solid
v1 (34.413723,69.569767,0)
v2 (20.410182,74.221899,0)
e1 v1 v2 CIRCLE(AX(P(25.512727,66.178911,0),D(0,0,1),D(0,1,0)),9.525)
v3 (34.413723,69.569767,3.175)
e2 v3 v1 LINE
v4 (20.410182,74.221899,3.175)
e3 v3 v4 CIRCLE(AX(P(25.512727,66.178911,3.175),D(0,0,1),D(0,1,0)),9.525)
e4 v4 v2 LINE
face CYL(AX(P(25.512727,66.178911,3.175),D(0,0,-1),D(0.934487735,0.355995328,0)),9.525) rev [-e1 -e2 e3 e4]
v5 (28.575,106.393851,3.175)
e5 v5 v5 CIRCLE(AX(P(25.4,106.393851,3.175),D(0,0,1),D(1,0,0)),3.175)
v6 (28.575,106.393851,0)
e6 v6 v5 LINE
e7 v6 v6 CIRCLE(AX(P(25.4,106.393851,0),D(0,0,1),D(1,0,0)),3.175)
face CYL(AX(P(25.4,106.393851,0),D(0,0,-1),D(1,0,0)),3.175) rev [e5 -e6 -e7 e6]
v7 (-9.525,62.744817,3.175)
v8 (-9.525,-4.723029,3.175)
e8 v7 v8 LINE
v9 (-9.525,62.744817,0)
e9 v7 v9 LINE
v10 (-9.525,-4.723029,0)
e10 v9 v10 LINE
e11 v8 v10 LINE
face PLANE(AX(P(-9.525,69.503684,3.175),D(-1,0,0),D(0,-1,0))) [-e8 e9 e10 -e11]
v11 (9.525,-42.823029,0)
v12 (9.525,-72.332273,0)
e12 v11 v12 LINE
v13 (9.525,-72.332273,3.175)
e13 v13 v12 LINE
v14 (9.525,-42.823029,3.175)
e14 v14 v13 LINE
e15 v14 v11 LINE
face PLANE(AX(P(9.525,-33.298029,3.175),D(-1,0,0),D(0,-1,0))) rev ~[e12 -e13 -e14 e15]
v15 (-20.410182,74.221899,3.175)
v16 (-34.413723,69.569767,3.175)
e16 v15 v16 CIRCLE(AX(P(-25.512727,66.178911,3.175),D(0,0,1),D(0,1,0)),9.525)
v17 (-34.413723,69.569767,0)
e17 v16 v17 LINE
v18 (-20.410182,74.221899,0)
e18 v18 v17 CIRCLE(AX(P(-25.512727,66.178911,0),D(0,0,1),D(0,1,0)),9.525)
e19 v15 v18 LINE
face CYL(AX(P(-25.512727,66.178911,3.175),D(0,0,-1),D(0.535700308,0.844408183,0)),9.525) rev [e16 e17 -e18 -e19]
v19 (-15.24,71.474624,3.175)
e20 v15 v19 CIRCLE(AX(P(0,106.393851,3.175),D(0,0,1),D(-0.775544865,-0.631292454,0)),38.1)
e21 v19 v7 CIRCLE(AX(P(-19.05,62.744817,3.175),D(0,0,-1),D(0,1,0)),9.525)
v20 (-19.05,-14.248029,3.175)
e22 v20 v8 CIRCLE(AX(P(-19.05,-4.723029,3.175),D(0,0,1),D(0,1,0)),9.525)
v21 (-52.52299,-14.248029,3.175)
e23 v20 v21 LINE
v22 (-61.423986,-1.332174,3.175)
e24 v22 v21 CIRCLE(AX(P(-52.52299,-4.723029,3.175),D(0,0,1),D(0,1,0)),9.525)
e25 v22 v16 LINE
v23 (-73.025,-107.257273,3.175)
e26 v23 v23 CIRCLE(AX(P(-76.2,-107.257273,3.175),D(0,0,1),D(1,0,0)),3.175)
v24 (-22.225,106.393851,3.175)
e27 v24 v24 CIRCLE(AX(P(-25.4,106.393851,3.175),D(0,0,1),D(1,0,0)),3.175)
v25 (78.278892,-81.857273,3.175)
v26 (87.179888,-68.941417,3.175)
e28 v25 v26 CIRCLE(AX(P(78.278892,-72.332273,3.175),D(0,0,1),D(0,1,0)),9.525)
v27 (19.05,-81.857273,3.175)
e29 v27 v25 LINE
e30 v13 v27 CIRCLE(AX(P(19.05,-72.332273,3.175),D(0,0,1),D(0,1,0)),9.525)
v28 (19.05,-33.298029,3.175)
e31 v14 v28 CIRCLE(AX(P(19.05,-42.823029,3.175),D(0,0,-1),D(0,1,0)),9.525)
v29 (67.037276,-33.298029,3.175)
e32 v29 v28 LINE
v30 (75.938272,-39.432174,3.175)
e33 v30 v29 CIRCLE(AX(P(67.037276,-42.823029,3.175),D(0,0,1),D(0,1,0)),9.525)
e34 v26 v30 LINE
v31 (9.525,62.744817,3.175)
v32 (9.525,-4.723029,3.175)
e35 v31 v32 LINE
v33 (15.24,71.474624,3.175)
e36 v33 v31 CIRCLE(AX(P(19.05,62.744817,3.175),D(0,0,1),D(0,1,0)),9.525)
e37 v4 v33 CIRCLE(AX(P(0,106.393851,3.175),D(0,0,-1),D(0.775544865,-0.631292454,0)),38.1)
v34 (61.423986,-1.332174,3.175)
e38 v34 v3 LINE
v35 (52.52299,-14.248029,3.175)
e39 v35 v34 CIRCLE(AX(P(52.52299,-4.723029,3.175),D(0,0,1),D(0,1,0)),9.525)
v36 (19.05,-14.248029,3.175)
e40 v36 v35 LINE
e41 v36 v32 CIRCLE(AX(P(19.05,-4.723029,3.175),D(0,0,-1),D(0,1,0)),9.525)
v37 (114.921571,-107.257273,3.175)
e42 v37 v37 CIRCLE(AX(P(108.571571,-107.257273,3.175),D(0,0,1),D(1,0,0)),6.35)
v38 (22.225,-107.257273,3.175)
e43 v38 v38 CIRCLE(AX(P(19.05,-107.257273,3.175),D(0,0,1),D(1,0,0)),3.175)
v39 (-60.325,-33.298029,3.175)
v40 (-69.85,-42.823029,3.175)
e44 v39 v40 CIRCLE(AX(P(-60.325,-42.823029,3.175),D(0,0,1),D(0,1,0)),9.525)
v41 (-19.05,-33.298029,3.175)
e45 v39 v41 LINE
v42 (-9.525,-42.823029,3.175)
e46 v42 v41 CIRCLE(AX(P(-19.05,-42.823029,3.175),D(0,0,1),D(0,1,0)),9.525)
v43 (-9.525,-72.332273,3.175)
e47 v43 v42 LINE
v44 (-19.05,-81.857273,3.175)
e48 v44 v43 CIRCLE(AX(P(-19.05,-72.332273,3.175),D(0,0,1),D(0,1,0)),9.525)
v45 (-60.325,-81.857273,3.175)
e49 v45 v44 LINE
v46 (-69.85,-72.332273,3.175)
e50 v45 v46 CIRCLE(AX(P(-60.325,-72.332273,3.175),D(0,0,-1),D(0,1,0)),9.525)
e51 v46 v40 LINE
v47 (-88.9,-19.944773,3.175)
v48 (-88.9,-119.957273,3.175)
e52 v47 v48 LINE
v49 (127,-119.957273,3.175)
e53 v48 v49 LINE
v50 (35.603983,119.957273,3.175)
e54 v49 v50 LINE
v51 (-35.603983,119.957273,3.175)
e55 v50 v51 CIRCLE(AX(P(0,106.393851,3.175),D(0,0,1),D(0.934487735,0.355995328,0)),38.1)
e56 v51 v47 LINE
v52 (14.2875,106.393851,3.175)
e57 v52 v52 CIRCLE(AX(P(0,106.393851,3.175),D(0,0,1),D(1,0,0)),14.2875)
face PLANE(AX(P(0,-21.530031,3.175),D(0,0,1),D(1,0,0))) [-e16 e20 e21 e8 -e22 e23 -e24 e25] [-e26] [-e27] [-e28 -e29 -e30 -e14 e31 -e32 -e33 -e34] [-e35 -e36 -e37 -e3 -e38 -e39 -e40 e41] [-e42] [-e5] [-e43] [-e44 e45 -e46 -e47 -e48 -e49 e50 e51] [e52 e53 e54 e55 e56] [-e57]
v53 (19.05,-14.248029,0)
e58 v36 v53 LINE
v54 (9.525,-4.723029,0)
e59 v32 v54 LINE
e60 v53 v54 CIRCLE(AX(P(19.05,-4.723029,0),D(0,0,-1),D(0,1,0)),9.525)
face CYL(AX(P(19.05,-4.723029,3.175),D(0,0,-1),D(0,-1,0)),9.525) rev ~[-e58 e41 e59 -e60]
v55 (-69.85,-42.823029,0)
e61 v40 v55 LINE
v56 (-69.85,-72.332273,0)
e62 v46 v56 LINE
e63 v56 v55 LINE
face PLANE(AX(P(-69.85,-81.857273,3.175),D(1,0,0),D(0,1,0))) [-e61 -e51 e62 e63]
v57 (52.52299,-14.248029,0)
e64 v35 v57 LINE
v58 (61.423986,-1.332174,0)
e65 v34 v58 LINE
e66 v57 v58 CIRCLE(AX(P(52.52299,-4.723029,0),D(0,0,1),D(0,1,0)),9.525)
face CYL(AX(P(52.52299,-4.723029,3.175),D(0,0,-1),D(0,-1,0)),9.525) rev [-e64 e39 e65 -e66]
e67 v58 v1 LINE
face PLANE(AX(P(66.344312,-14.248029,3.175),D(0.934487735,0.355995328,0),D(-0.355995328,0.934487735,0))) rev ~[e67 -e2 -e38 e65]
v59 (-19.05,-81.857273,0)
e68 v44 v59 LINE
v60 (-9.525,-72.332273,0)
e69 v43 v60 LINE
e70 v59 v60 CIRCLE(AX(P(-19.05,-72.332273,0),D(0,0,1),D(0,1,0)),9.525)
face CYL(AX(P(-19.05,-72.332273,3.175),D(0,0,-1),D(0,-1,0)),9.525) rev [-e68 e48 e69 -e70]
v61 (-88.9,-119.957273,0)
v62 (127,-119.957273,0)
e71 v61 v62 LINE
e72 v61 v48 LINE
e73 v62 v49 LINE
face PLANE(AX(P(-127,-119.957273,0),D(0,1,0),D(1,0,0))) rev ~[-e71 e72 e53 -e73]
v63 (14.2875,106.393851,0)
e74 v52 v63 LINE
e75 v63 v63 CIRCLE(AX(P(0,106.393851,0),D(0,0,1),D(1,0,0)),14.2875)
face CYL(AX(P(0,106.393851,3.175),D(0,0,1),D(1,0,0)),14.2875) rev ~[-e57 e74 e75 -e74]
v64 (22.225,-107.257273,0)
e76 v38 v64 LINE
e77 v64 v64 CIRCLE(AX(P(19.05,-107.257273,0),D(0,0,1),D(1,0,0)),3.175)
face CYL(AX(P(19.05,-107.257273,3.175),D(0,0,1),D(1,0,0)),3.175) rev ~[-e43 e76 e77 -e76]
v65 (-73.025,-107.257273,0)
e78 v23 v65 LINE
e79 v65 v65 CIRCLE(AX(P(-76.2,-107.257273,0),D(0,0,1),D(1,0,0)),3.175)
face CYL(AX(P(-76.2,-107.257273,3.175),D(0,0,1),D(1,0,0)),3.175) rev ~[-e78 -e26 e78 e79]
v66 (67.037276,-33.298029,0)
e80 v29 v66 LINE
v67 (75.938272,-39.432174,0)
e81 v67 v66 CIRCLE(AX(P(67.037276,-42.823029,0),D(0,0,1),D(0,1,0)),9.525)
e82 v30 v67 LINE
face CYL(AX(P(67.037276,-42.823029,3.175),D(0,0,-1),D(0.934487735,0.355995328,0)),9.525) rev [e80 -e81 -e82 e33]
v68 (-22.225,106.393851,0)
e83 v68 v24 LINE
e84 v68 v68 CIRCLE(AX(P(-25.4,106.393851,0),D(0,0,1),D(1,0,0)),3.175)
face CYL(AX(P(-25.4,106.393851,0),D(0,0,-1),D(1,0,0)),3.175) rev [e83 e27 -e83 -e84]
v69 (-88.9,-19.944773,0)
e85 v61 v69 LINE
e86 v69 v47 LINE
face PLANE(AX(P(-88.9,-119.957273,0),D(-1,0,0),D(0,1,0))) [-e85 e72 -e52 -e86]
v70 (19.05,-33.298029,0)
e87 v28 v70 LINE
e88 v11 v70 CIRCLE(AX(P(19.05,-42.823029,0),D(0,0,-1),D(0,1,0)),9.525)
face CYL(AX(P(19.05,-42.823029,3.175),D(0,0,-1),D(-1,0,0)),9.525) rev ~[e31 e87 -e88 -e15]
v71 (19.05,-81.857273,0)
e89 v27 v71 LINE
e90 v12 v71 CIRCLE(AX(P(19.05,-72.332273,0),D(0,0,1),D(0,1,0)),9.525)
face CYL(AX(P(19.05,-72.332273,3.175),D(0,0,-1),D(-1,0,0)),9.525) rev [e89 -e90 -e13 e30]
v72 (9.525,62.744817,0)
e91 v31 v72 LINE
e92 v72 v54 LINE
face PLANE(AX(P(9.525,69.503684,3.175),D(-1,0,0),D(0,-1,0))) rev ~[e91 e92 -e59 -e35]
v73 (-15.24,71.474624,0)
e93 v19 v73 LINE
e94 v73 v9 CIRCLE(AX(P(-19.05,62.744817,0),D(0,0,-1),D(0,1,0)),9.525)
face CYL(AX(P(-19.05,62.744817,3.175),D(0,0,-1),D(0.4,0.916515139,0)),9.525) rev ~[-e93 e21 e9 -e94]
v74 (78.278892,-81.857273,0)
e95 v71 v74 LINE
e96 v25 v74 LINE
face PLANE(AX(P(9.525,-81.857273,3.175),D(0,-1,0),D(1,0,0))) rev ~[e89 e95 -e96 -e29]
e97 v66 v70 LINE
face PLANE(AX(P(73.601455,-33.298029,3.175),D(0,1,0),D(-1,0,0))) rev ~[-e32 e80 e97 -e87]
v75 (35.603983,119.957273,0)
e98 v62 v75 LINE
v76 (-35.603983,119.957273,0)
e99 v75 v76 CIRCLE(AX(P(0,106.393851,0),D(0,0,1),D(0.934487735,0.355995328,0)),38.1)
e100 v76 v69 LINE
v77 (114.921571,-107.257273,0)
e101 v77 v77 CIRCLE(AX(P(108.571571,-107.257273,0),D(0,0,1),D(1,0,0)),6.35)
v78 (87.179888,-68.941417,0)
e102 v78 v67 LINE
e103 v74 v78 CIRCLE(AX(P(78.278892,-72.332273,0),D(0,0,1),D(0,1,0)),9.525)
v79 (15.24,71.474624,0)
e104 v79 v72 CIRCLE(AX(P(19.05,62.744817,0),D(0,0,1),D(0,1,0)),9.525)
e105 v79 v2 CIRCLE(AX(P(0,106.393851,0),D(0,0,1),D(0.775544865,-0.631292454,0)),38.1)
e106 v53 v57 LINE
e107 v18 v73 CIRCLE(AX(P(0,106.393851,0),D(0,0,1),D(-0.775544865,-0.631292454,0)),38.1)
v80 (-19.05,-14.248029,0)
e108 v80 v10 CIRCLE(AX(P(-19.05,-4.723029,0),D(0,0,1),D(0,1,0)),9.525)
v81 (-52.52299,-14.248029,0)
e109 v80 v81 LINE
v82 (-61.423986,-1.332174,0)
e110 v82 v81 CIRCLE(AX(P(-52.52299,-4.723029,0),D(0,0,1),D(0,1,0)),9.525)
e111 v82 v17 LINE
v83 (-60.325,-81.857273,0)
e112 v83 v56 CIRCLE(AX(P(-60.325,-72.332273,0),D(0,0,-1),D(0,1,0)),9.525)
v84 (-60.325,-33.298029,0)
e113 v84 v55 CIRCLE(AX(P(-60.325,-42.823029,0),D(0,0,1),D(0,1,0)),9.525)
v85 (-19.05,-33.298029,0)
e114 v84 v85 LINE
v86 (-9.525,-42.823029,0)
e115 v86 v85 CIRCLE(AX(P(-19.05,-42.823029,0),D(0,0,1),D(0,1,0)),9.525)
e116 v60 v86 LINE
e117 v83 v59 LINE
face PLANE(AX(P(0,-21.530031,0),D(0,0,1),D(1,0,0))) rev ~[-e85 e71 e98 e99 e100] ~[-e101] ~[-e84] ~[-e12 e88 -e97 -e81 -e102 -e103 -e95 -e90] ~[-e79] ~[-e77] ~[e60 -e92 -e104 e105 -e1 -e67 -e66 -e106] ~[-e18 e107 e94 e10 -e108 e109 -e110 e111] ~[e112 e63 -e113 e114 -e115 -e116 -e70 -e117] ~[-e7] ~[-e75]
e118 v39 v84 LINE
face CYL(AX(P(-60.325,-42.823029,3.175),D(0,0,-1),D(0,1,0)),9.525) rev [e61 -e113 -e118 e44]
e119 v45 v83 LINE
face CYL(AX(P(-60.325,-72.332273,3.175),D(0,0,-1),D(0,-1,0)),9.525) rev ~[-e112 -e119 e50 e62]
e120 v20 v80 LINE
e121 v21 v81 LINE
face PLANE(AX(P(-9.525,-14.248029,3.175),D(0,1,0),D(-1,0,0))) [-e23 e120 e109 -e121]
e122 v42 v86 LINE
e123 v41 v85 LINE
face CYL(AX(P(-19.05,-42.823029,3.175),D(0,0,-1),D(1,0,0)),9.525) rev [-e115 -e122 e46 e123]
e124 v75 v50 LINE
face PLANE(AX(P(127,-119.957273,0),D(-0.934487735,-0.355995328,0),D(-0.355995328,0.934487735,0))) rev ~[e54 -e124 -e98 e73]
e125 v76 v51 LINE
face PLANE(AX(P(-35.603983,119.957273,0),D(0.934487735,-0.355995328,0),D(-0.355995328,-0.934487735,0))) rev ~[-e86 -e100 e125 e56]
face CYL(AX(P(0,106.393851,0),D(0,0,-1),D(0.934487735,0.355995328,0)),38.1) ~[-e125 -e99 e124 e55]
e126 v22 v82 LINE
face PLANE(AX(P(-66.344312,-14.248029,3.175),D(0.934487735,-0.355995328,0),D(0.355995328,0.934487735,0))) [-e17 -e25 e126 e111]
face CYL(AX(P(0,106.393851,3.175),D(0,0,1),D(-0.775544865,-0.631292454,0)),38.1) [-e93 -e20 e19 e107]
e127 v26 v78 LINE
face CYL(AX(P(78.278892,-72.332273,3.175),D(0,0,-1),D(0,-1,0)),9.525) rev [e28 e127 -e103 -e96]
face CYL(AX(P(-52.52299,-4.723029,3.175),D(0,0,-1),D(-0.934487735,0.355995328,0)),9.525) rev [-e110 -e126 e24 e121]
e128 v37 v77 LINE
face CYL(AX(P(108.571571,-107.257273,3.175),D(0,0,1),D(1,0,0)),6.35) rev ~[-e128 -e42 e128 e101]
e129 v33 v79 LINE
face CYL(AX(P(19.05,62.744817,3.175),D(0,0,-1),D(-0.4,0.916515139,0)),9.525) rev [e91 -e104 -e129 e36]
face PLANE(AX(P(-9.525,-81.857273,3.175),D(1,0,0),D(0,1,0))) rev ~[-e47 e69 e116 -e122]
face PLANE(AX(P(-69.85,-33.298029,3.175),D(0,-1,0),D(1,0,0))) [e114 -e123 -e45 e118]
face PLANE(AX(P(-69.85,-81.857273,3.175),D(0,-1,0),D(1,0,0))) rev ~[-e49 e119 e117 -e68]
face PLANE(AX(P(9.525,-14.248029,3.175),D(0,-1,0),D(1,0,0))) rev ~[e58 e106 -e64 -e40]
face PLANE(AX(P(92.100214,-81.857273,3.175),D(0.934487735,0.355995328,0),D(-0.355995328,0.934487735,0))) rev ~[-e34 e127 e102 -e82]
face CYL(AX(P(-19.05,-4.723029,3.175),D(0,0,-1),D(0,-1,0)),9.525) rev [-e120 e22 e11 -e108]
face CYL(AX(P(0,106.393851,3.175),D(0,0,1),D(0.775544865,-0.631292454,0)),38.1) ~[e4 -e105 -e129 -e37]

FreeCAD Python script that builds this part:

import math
import FreeCAD as App
import Part
import Sketcher
from FreeCAD import Vector
Q = App.Units.Quantity


def edges_at(feature, points):
    """Names of the edges that pass closest to the given points."""
    edges = feature.Shape.Edges
    near = lambda p: min(range(len(edges)), key=lambda i: edges[i].distToShape(Part.Vertex(*p))[0])
    return sorted({f"Edge{near(p) + 1}" for p in points})


def add_polygon(sketch, points):
    """Adds a closed chain of lines whose ends are joined by coincident constraints."""
    first, n = sketch.GeometryCount, len(points)
    for a, b in zip(points, points[1:] + points[:1]):
        sketch.addGeometry(Part.LineSegment(App.Vector(*a, 0), App.Vector(*b, 0)), False)
    for i in range(n):
        sketch.addConstraint(Sketcher.Constraint("Coincident", first + i, 2, first + (i + 1) % n, 1))

doc = App.newDocument("Part")
body = doc.addObject("PartDesign::Body", "Body")

# Sketch on XY plane
sketch1 = body.newObject("Sketcher::SketchObject", "Sketch")
sketch1.AttachmentSupport = (doc.getObject("XY_Plane"), [""])
sketch1.MapMode = "FlatFace"
sketch1.addGeometry(Part.LineSegment(Vector(-35.603983, 119.957273, 0), Vector(-127, -119.957273, 0)), False)
sketch1.addGeometry(Part.LineSegment(Vector(-127, -119.957273, 0), Vector(127, -119.957273, 0)), False)
sketch1.addGeometry(Part.LineSegment(Vector(127, -119.957273, 0), Vector(35.603983, 119.957273, 0)), False)
sketch1.addGeometry(Part.ArcOfCircle(Part.Circle(Vector(0, 106.393851, 0), Vector(0, 0, 1), 38.1), math.radians(20.854458), math.radians(159.145542)), False)
sketch1.addGeometry(Part.Circle(Vector(-25.4, 106.393851, 0), Vector(0, 0, 1), 3.175), False)
sketch1.addGeometry(Part.Circle(Vector(25.4, 106.393851, 0), Vector(0, 0, 1), 3.175), False)
sketch1.addConstraint(Sketcher.Constraint("Coincident", 0, 2, 1, 1))
sketch1.addConstraint(Sketcher.Constraint("Coincident", 1, 2, 2, 1))
sketch1.addConstraint(Sketcher.Constraint("Tangent", 2, 2, 3, 1))
sketch1.addConstraint(Sketcher.Constraint("Tangent", 3, 2, 0, 1))
sketch1.addConstraint(Sketcher.Constraint("Horizontal", 1))
sketch1.addConstraint(Sketcher.Constraint("Equal", 4, 5))
sketch1.addConstraint(Sketcher.Constraint("Symmetric", 4, 3, 5, 3, -2))
sketch1.addConstraint(Sketcher.Constraint("Symmetric", 2, 2, 3, 2, -2))
sketch1.addConstraint(Sketcher.Constraint("Horizontal", 3, 3, 4, 3))
sketch1.addConstraint(Sketcher.Constraint("Radius", 3, Q("1.5 in")))
sketch1.addConstraint(Sketcher.Constraint("Diameter", 4, Q("0.25 in")))
sketch1.addConstraint(Sketcher.Constraint("DistanceX", 1, 1, 1, 2, Q("10 in")))
sketch1.addConstraint(Sketcher.Constraint("DistanceX", 4, 3, -1, 1, Q("1 in")))
sketch1.addConstraint(Sketcher.Constraint("DistanceY", -1, 1, 3, 3, Q("106.393851 mm")))
sketch1.addConstraint(Sketcher.Constraint("DistanceY", 5, 3, 2, 2, Q("13.563422 mm")))
pad1 = body.newObject("PartDesign::Pad", "Pad")
pad1.Profile = sketch1
pad1.Length = Q("0.125 in")

# Sketch on XY plane
sketch2 = body.newObject("Sketcher::SketchObject", "Sketch001")
sketch2.AttachmentSupport = (doc.getObject("XY_Plane"), [""])
sketch2.MapMode = "FlatFace"
sketch2.AttachmentOffset = App.Placement(Vector(0, 0, 0.125 * 25.4), App.Rotation())
sketch2.addGeometry(Part.Circle(Vector(0, 106.393851, 0), Vector(0, 0, 1), 14.2875), False)
sketch2.addConstraint(Sketcher.Constraint("PointOnObject", 0, 3, -2))
sketch2.addConstraint(Sketcher.Constraint("Diameter", 0, Q("1.125 in")))
sketch2.addConstraint(Sketcher.Constraint("DistanceY", -1, 1, 0, 3, Q("106.393851 mm")))
pocket1 = body.newObject("PartDesign::Pocket", "Pocket")
pocket1.Profile = sketch2
pocket1.Type = "ThroughAll"

# Sketch on XY plane
sketch3 = body.newObject("Sketcher::SketchObject", "Sketch002")
sketch3.AttachmentSupport = (doc.getObject("XY_Plane"), [""])
sketch3.MapMode = "FlatFace"
sketch3.AttachmentOffset = App.Placement(Vector(0, 0, 0.125 * 25.4), App.Rotation())
sketch3.addGeometry(Part.Circle(Vector(108.571571, -107.257273, 0), Vector(0, 0, 1), 6.35), False)
sketch3.addGeometry(Part.Circle(Vector(-76.2, -107.257273, 0), Vector(0, 0, 1), 3.175), False)
sketch3.addGeometry(Part.Circle(Vector(19.05, -107.257273, 0), Vector(0, 0, 1), 3.175), False)
sketch3.addConstraint(Sketcher.Constraint("Equal", 1, 2))
sketch3.addConstraint(Sketcher.Constraint("Horizontal", 0, 3, 1, 3))
sketch3.addConstraint(Sketcher.Constraint("Horizontal", 1, 3, 2, 3))
sketch3.addConstraint(Sketcher.Constraint("Diameter", 0, Q("0.5 in")))
sketch3.addConstraint(Sketcher.Constraint("Diameter", 1, Q("0.25 in")))
sketch3.addConstraint(Sketcher.Constraint("DistanceX", 1, 3, -1, 1, Q("3 in")))
sketch3.addConstraint(Sketcher.Constraint("DistanceX", -1, 1, 2, 3, Q("0.75 in")))
sketch3.addConstraint(Sketcher.Constraint("DistanceX", -1, 1, 0, 3, Q("108.571571 mm")))
sketch3.addConstraint(Sketcher.Constraint("DistanceY", 0, 3, -1, 1, Q("107.257273 mm")))
pocket2 = body.newObject("PartDesign::Pocket", "Pocket001")
pocket2.Profile = sketch3
pocket2.Type = "ThroughAll"

# Sketch on XY plane
sketch4 = body.newObject("Sketcher::SketchObject", "Sketch003")
sketch4.AttachmentSupport = (doc.getObject("XY_Plane"), [""])
sketch4.MapMode = "FlatFace"
add_polygon(sketch4, [(-88.9, -19.944773), (-88.9, -119.957273), (-127, -119.957273), (-127, -19.944773)])  # lines 0-3
sketch4.addConstraint(Sketcher.Constraint("Vertical", 0))
sketch4.addConstraint(Sketcher.Constraint("Horizontal", 1))
sketch4.addConstraint(Sketcher.Constraint("Vertical", 2))
sketch4.addConstraint(Sketcher.Constraint("Horizontal", 3))
sketch4.addConstraint(Sketcher.Constraint("DistanceX", 1, 2, 1, 1, Q("1.5 in")))
sketch4.addConstraint(Sketcher.Constraint("DistanceX", 1, 2, -1, 1, Q("5 in")))
sketch4.addConstraint(Sketcher.Constraint("DistanceY", 0, 2, 0, 1, Q("3.9375 in")))
sketch4.addConstraint(Sketcher.Constraint("DistanceY", 0, 2, -1, 1, Q("119.957273 mm")))
pocket3 = body.newObject("PartDesign::Pocket", "Pocket002")
pocket3.Profile = sketch4
pocket3.Type = "ThroughAll"
pocket3.Reversed = True

# Sketch on XY plane
sketch5 = body.newObject("Sketcher::SketchObject", "Sketch004")
sketch5.AttachmentSupport = (doc.getObject("XY_Plane"), [""])
sketch5.MapMode = "FlatFace"
sketch5.AttachmentOffset = App.Placement(Vector(0, 0, 0.125 * 25.4), App.Rotation())
sketch5.addGeometry(Part.LineSegment(Vector(-9.525, -14.248029, 0), Vector(-9.525, 69.503684, 0)), False)  # 0
sketch5.addGeometry(Part.ArcOfCircle(Part.Circle(Vector(0, 106.393851, 0), Vector(0, 0, 1), 38.1), math.radians(-140.854458), math.radians(-104.477512)), False)  # 1
sketch5.addGeometry(Part.LineSegment(Vector(-29.548259, 82.341608, 0), Vector(-66.344312, -14.248029, 0)), False)  # 2
sketch5.addGeometry(Part.LineSegment(Vector(-66.344312, -14.248029, 0), Vector(-9.525, -14.248029, 0)), False)  # 3
add_polygon(sketch5, [(-69.85, -33.298029), (-69.85, -81.857273), (-9.525, -81.857273), (-9.525, -33.298029)])  # lines 4-7
add_polygon(sketch5, [(9.525, -33.298029), (9.525, -81.857273), (92.100214, -81.857273), (73.601455, -33.298029)])  # lines 8-11
sketch5.addGeometry(Part.LineSegment(Vector(9.525, -14.248029, 0), Vector(66.344312, -14.248029, 0)), False)  # 12
sketch5.addGeometry(Part.LineSegment(Vector(66.344312, -14.248029, 0), Vector(29.548259, 82.341608, 0)), False)  # 13
sketch5.addGeometry(Part.ArcOfCircle(Part.Circle(Vector(0, 106.393851, 0), Vector(0, 0, 1), 38.1), math.radians(-75.522488), math.radians(-39.145542)), False)  # 14
sketch5.addGeometry(Part.LineSegment(Vector(9.525, 69.503684, 0), Vector(9.525, -14.248029, 0)), False)  # 15
sketch5.addConstraint(Sketcher.Constraint("Coincident", 0, 2, 1, 2))
sketch5.addConstraint(Sketcher.Constraint("Coincident", 1, 1, 2, 1))
sketch5.addConstraint(Sketcher.Constraint("Coincident", 2, 2, 3, 1))
sketch5.addConstraint(Sketcher.Constraint("Coincident", 3, 2, 0, 1))
sketch5.addConstraint(Sketcher.Constraint("Coincident", 12, 2, 13, 1))
sketch5.addConstraint(Sketcher.Constraint("Coincident", 13, 2, 14, 2))
sketch5.addConstraint(Sketcher.Constraint("Coincident", 14, 1, 15, 1))
sketch5.addConstraint(Sketcher.Constraint("Coincident", 15, 2, 12, 1))
sketch5.addConstraint(Sketcher.Constraint("Vertical", 0))
sketch5.addConstraint(Sketcher.Constraint("Horizontal", 3))
sketch5.addConstraint(Sketcher.Constraint("Vertical", 4))
sketch5.addConstraint(Sketcher.Constraint("Horizontal", 5))
sketch5.addConstraint(Sketcher.Constraint("Vertical", 6))
sketch5.addConstraint(Sketcher.Constraint("Horizontal", 7))
sketch5.addConstraint(Sketcher.Constraint("Vertical", 8))
sketch5.addConstraint(Sketcher.Constraint("Horizontal", 9))
sketch5.addConstraint(Sketcher.Constraint("Horizontal", 11))
sketch5.addConstraint(Sketcher.Constraint("Horizontal", 12))
sketch5.addConstraint(Sketcher.Constraint("Vertical", 15))
sketch5.addConstraint(Sketcher.Constraint("Coincident", 14, 3, 1, 3))
sketch5.addConstraint(Sketcher.Constraint("Equal", 1, 14))
sketch5.addConstraint(Sketcher.Constraint("Symmetric", 5, 2, 8, 2, -2))
sketch5.addConstraint(Sketcher.Constraint("Symmetric", 2, 2, 12, 2, -2))
sketch5.addConstraint(Sketcher.Constraint("Symmetric", 1, 1, 13, 2, -2))
sketch5.addConstraint(Sketcher.Constraint("Parallel", 10, 13))
sketch5.addConstraint(Sketcher.Constraint("Horizontal", 7, 2, 10, 2))
sketch5.addConstraint(Sketcher.Constraint("Horizontal", 0, 2, 14, 1))
sketch5.addConstraint(Sketcher.Constraint("Vertical", 3, 2, 5, 2))
sketch5.addConstraint(Sketcher.Constraint("Radius", 1, Q("1.5 in")))
sketch5.addConstraint(Sketcher.Constraint("DistanceX", 5, 1, 5, 2, Q("2.375 in")))
sketch5.addConstraint(Sketcher.Constraint("DistanceX", 4, 2, -1, 1, Q("2.75 in")))
sketch5.addConstraint(Sketcher.Constraint("DistanceY", 6, 2, 3, 2, Q("0.75 in")))
sketch5.addConstraint(Sketcher.Constraint("DistanceX", 3, 1, 3, 2, Q("56.819312 mm")))
sketch5.addConstraint(Sketcher.Constraint("Distance", 10, Q("51.963489 mm")))
sketch5.addConstraint(Sketcher.Constraint("DistanceX", 9, 1, 9, 2, Q("82.575214 mm")))
sketch5.addConstraint(Sketcher.Constraint("DistanceX", 11, 2, 11, 1, Q("64.076455 mm")))
sketch5.addConstraint(Sketcher.Constraint("DistanceY", 0, 1, 0, 2, Q("83.751714 mm")))
sketch5.addConstraint(Sketcher.Constraint("DistanceY", -1, 1, 1, 3, Q("106.393851 mm")))
pocket4 = body.newObject("PartDesign::Pocket", "Pocket003")
pocket4.Profile = sketch5
pocket4.Type = "ThroughAll"
doc.recompute()

fillet = body.newObject("PartDesign::Fillet", "Fillet")
fillet.Base = (pocket4, edges_at(pocket4, [
    (-29.548, 82.342, 1.587),
    (-9.525, 69.504, 1.587),
    (-9.525, -14.248, 1.587),
    (-66.344, -14.248, 1.587),
    (-69.85, -33.298, 1.587),
    (-9.525, -33.298, 1.587),
    (-9.525, -81.857, 1.587),
    (-69.85, -81.857, 1.587),
    (9.525, -33.298, 1.587),
    (73.601, -33.298, 1.587),
    (92.1, -81.857, 1.587),
    (9.525, -81.857, 1.587),
    (9.525, -14.248, 1.587),
    (9.525, 69.504, 1.587),
    (29.548, 82.342, 1.587),
    (66.344, -14.248, 1.587),
]))
fillet.Radius = Q("0.375 in")

doc.recompute()
